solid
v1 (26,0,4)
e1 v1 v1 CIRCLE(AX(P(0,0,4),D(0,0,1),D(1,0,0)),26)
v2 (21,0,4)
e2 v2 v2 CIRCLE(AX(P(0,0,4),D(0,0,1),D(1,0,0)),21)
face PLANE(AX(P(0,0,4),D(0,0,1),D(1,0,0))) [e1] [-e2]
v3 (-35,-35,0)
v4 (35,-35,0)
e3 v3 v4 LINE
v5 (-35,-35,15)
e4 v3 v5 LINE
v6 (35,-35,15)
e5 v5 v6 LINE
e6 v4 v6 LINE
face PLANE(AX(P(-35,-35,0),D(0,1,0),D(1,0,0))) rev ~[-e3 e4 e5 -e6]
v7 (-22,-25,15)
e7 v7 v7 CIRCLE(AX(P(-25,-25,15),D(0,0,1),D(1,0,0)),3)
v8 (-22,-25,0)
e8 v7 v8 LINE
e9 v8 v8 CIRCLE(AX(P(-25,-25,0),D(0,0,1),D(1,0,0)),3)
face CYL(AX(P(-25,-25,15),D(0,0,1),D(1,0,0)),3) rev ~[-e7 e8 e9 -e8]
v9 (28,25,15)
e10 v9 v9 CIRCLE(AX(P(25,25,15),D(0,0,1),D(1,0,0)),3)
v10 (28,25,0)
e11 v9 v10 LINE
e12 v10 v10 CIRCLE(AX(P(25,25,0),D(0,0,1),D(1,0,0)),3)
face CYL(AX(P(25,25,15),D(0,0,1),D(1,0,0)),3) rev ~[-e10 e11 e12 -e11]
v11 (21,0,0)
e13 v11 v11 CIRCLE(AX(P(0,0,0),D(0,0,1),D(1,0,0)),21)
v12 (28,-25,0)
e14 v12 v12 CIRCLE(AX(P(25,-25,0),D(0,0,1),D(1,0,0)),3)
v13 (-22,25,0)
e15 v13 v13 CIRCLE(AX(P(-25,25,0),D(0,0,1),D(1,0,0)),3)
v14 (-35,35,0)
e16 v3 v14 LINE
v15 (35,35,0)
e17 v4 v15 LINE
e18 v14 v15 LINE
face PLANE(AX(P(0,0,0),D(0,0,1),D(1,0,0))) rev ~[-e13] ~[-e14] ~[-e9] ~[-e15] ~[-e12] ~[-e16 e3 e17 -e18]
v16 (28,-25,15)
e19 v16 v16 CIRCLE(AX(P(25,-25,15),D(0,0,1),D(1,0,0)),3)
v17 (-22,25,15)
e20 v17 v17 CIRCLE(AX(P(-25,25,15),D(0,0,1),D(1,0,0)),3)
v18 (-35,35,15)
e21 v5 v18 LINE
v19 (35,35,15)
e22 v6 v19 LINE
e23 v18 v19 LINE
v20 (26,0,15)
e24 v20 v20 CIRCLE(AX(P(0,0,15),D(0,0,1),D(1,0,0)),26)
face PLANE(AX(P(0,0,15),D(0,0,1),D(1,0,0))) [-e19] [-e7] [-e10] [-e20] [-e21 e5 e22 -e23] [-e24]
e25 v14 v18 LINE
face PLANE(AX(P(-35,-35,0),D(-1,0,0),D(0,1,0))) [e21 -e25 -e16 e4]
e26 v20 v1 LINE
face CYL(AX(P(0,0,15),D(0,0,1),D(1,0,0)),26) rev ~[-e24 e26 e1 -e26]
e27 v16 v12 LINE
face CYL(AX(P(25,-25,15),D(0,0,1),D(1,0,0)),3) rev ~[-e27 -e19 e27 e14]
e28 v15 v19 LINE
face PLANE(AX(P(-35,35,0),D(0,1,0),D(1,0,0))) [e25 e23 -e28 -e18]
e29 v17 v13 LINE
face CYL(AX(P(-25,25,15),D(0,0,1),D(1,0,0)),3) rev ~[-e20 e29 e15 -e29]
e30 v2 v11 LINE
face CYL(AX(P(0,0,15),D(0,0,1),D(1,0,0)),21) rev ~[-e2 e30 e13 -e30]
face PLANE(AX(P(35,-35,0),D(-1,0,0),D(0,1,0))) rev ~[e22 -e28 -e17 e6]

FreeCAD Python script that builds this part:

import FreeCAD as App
import Part
import Sketcher


def add_polygon(sketch, points):
    """Adds a closed chain of lines whose ends are joined by coincident constraints."""
    first, n = sketch.GeometryCount, len(points)
    for a, b in zip(points, points[1:] + points[:1]):
        sketch.addGeometry(Part.LineSegment(App.Vector(*a, 0), App.Vector(*b, 0)), False)
    for i in range(n):
        sketch.addConstraint(Sketcher.Constraint("Coincident", first + i, 2, first + (i + 1) % n, 1))

doc = App.newDocument("Part")
body = doc.addObject("PartDesign::Body", "Body")

sketch1 = body.newObject("Sketcher::SketchObject", "Sketch")
sketch1.AttachmentSupport = (doc.getObject("XY_Plane"), [""])
sketch1.MapMode = "FlatFace"
add_polygon(sketch1, [(-35, 35), (-35, -35), (35, -35), (35, 35)])
sketch1.addConstraint([
    Sketcher.Constraint("Vertical", 0),
    Sketcher.Constraint("Horizontal", 1),
    Sketcher.Constraint("Vertical", 2),
    Sketcher.Constraint("Horizontal", 3),
    Sketcher.Constraint("Symmetric", 0, 2, 2, 2, -1, 1),
    Sketcher.Constraint("Equal", 3, 0),
    Sketcher.Constraint("DistanceX", 1, 1, 1, 2, 70.0),
])
pad1 = body.newObject("PartDesign::Pad", "Pad")
pad1.Profile = sketch1
pad1.Length = 15

sketch2 = body.newObject("Sketcher::SketchObject", "Sketch001")
sketch2.AttachmentSupport = (doc.getObject("XY_Plane"), [""])
sketch2.MapMode = "FlatFace"
sketch2.AttachmentOffset = App.Placement(App.Vector(0, 0, 15), App.Rotation())
sketch2.addGeometry(Part.Circle(App.Vector(0, 0, 0), App.Vector(0, 0, 1), 26), False)
sketch2.addConstraint([
    Sketcher.Constraint("Coincident", 0, 3, -1, 1),
    Sketcher.Constraint("Diameter", 0, 52.0),
])
pocket1 = body.newObject("PartDesign::Pocket", "Pocket")
pocket1.Profile = sketch2
pocket1.Length = 11

sketch3 = body.newObject("Sketcher::SketchObject", "Sketch002")
sketch3.AttachmentSupport = (doc.getObject("XY_Plane"), [""])
sketch3.MapMode = "FlatFace"
sketch3.AttachmentOffset = App.Placement(App.Vector(0, 0, 15), App.Rotation())
sketch3.addGeometry([
    Part.Circle(App.Vector(-25, 25, 0), App.Vector(0, 0, 1), 3),
    Part.Circle(App.Vector(25, 25, 0), App.Vector(0, 0, 1), 3),
    Part.Circle(App.Vector(25, -25, 0), App.Vector(0, 0, 1), 3),
    Part.Circle(App.Vector(-25, -25, 0), App.Vector(0, 0, 1), 3),
    Part.Circle(App.Vector(0, 0, 0), App.Vector(0, 0, 1), 21),
], False)
sketch3.addConstraint([
    Sketcher.Constraint("Coincident", 4, 3, -1, 1),
    Sketcher.Constraint("Equal", 0, 1),
    Sketcher.Constraint("Equal", 1, 2),
    Sketcher.Constraint("Equal", 2, 3),
    Sketcher.Constraint("Symmetric", 0, 3, 2, 3, -1, 1),
    Sketcher.Constraint("Symmetric", 1, 3, 3, 3, -1, 1),
    Sketcher.Constraint("Symmetric", 0, 3, 1, 3, -2),
    Sketcher.Constraint("Diameter", 0, 6.0),
    Sketcher.Constraint("Diameter", 4, 42.0),
    Sketcher.Constraint("DistanceX", 0, 3, -1, 1, 25.0),
    Sketcher.Constraint("DistanceY", -1, 1, 0, 3, 25.0),
])
pocket2 = body.newObject("PartDesign::Pocket", "Pocket001")
pocket2.Profile = sketch3
pocket2.Type = "ThroughAll"

doc.recompute()
